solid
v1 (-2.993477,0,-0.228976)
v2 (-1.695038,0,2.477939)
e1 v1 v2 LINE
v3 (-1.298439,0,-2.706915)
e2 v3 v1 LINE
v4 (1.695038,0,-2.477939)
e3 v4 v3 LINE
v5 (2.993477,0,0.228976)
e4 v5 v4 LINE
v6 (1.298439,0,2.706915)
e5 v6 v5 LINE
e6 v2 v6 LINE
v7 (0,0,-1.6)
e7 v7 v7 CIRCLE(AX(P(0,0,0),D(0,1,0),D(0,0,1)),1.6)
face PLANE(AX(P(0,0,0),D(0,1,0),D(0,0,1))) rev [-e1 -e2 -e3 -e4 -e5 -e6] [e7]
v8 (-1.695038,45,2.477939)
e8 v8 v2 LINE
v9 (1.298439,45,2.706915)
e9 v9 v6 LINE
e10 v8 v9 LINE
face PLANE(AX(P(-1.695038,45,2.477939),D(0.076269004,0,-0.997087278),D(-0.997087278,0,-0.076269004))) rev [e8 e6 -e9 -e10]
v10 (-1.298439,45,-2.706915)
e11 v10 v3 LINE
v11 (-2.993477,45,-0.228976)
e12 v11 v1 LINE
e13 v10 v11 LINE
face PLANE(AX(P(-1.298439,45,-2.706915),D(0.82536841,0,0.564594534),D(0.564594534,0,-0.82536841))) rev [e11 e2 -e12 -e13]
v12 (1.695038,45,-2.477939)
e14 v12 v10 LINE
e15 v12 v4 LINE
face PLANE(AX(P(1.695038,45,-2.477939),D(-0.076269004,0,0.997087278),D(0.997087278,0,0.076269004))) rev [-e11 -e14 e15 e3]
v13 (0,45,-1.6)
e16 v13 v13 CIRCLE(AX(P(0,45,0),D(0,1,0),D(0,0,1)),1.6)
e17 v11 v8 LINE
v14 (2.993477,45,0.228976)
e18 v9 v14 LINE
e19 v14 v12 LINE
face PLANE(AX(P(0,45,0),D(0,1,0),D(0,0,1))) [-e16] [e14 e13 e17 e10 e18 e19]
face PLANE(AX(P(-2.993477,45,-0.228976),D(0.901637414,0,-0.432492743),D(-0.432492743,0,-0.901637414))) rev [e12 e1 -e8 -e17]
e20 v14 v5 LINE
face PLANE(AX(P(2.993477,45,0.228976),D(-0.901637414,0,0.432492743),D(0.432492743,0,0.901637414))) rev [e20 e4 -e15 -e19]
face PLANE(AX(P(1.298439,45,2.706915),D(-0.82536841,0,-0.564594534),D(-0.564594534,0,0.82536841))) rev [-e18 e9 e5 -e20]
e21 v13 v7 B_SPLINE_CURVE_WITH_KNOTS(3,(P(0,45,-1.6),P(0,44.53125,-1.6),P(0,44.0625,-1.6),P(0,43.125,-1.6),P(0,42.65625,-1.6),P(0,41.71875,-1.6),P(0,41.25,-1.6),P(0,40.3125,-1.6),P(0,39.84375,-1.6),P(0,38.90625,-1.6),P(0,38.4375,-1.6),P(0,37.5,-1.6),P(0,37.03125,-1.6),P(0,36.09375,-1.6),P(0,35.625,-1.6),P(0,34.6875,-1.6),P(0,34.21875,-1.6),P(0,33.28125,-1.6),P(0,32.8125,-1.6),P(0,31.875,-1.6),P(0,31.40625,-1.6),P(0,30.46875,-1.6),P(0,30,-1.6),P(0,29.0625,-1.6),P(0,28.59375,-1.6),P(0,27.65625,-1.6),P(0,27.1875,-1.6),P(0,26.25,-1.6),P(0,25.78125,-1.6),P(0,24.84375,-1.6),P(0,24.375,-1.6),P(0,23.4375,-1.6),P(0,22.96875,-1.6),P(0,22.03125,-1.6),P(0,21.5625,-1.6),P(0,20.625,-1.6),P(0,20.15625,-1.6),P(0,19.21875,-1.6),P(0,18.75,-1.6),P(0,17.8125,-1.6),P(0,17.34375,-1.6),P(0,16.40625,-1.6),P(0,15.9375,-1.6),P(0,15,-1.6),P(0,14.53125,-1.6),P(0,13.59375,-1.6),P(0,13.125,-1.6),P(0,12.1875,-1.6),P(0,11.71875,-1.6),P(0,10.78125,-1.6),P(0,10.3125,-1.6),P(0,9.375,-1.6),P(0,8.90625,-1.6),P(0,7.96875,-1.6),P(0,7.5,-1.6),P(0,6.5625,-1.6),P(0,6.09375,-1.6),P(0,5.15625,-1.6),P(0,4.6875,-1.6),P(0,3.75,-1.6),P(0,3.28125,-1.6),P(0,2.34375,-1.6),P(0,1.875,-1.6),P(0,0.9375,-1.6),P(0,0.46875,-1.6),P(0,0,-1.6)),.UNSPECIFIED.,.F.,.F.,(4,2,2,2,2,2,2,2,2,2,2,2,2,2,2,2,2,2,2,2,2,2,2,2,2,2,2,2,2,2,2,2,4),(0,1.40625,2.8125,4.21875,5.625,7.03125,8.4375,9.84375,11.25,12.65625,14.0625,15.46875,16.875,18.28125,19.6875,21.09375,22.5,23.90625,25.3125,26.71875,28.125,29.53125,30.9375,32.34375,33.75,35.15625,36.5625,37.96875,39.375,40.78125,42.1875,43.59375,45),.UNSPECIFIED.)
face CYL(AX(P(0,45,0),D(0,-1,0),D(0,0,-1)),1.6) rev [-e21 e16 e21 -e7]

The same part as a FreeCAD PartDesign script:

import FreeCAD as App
import Part
import Sketcher
from FreeCAD import Vector
Q = App.Units.Quantity


def add_polygon(sketch, points):
    """Adds a closed chain of lines whose ends are joined by coincident constraints."""
    first, n = sketch.GeometryCount, len(points)
    for a, b in zip(points, points[1:] + points[:1]):
        sketch.addGeometry(Part.LineSegment(App.Vector(*a, 0), App.Vector(*b, 0)), False)
    for i in range(n):
        sketch.addConstraint(Sketcher.Constraint("Coincident", first + i, 2, first + (i + 1) % n, 1))

doc = App.newDocument("Part")
body = doc.addObject("PartDesign::Body", "Body")

# Sketch on XZ plane
sketch1 = body.newObject("Sketcher::SketchObject", "Sketch")
sketch1.AttachmentSupport = (doc.getObject("XZ_Plane"), [""])
sketch1.MapMode = "FlatFace"
add_polygon(sketch1, [(1.3, 2.7), (3, 0.2), (1.7, -2.5), (-1.3, -2.7), (-3, -0.2), (-1.7, 2.5)])  # lines 0-5
sketch1.addGeometry(Part.Circle(Vector(0, 0, 0), Vector(0, 0, 1), 1.6), False)  # 6
sketch1.addConstraint([
    Sketcher.Constraint("Coincident", 6, 3, -1, 1),
    Sketcher.Constraint("Symmetric", 0, 2, 3, 2, -1, 1),
    Sketcher.Constraint("Symmetric", 1, 2, 4, 2, -1, 1),
    Sketcher.Constraint("Symmetric", 2, 2, 5, 2, -1, 1),
    Sketcher.Constraint("Equal", 0, 1),
    Sketcher.Constraint("Equal", 1, 2),
    Sketcher.Constraint("Diameter", 6, Q("3.2 mm")),
    Sketcher.Constraint("DistanceX", 4, 2, 2, 2, Q("0.396599 mm")),
    Sketcher.Constraint("Distance", 0, Q("3.002221 mm")),
    Sketcher.Constraint("DistanceY", 1, 2, -1, 1, Q("2.477939 mm")),
    Sketcher.Constraint("DistanceX", 2, 2, -1, 1, Q("1.298439 mm")),
])
pad1 = body.newObject("PartDesign::Pad", "Pad")
pad1.Profile = sketch1
pad1.Length = 45
pad1.Reversed = True

doc.recompute()
